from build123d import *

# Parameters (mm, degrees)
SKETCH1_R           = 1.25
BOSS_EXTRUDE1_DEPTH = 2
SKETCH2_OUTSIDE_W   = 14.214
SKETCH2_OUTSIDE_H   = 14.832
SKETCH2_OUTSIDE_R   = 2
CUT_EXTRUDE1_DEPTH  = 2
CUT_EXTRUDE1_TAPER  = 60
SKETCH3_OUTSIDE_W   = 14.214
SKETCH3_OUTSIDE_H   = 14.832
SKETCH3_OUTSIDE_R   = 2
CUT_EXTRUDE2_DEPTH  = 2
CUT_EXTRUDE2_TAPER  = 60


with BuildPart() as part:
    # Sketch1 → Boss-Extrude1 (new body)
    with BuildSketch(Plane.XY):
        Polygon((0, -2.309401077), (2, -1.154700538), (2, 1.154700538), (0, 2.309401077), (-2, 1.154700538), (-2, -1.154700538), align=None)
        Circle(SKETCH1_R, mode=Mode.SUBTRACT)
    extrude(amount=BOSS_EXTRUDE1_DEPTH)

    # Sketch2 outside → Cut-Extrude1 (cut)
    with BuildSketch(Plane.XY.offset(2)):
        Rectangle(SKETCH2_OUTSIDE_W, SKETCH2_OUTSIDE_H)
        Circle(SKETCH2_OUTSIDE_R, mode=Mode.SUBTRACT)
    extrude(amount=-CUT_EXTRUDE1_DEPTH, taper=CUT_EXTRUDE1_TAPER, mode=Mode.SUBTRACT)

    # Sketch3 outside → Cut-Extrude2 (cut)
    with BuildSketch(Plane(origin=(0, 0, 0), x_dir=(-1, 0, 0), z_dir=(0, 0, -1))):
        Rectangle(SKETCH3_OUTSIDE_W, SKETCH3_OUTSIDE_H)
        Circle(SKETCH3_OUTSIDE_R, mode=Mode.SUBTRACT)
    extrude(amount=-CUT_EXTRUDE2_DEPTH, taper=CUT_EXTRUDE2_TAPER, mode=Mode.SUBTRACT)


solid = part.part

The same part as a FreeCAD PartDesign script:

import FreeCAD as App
import Part
import Sketcher
from FreeCAD import Vector
Q = App.Units.Quantity


def add_polygon(sketch, points):
    """Adds a closed chain of lines whose ends are joined by coincident constraints."""
    first, n = sketch.GeometryCount, len(points)
    for a, b in zip(points, points[1:] + points[:1]):
        sketch.addGeometry(Part.LineSegment(App.Vector(*a, 0), App.Vector(*b, 0)), False)
    for i in range(n):
        sketch.addConstraint(Sketcher.Constraint("Coincident", first + i, 2, first + (i + 1) % n, 1))

doc = App.newDocument("Part")
body = doc.addObject("PartDesign::Body", "Body")

# Sketch on XY plane
sketch1 = body.newObject("Sketcher::SketchObject", "Sketch")
sketch1.AttachmentSupport = (doc.getObject("XY_Plane"), [""])
sketch1.MapMode = "FlatFace"
add_polygon(sketch1, [(0, -2.3), (2, -1.2), (2, 1.2), (0, 2.3), (-2, 1.2), (-2, -1.2)])  # lines 0-5
sketch1.addGeometry(Part.Circle(Vector(0, 0, 0), Vector(0, 0, 1), 1.2), False)  # 6
sketch1.addConstraint(Sketcher.Constraint("Vertical", 1))
sketch1.addConstraint(Sketcher.Constraint("Vertical", 4))
sketch1.addConstraint(Sketcher.Constraint("Coincident", 6, 3, -1, 1))
sketch1.addConstraint(Sketcher.Constraint("Symmetric", 0, 2, 3, 2, -1, 1))
sketch1.addConstraint(Sketcher.Constraint("Symmetric", 2, 2, 5, 2, -1, 1))
sketch1.addConstraint(Sketcher.Constraint("PointOnObject", 2, 2, -2))
sketch1.addConstraint(Sketcher.Constraint("Parallel", 2, 5))
sketch1.addConstraint(Sketcher.Constraint("Horizontal", 1, 2, 3, 2))
sketch1.addConstraint(Sketcher.Constraint("Diameter", 6, 2.5))
sketch1.addConstraint(Sketcher.Constraint("Angle", 0, Q("30 deg")))
sketch1.addConstraint(Sketcher.Constraint("DistanceX", -1, 1, 0, 2, 2.0))
sketch1.addConstraint(Sketcher.Constraint("DistanceY", 1, 1, 1, 2, 2.309401))
pad1 = body.newObject("PartDesign::Pad", "Pad")
pad1.Profile = sketch1
pad1.Length = 2

# Sketch on XY plane
sketch2 = body.newObject("Sketcher::SketchObject", "Sketch001")
sketch2.AttachmentSupport = (doc.getObject("XY_Plane"), [""])
sketch2.MapMode = "FlatFace"
sketch2.AttachmentOffset = App.Placement(Vector(0, 0, 2), App.Rotation())
add_polygon(sketch2, [(-7.1, 7.4), (-7.1, -7.4), (7.1, -7.4), (7.1, 7.4)])  # lines 0-3
sketch2.addGeometry(Part.Circle(Vector(0, 0, 0), Vector(0, 0, 1), 2), False)  # 4
sketch2.addConstraint(Sketcher.Constraint("Vertical", 0))
sketch2.addConstraint(Sketcher.Constraint("Horizontal", 1))
sketch2.addConstraint(Sketcher.Constraint("Vertical", 2))
sketch2.addConstraint(Sketcher.Constraint("Horizontal", 3))
sketch2.addConstraint(Sketcher.Constraint("Coincident", 4, 3, -1, 1))
sketch2.addConstraint(Sketcher.Constraint("Symmetric", 0, 2, 2, 2, -1, 1))
sketch2.addConstraint(Sketcher.Constraint("Diameter", 4, 4.0))
sketch2.addConstraint(Sketcher.Constraint("DistanceX", 1, 1, 1, 2, 14.214))
sketch2.addConstraint(Sketcher.Constraint("DistanceY", 0, 2, 0, 1, 14.832))
pocket1 = body.newObject("PartDesign::Pocket", "Pocket")
pocket1.Profile = sketch2
pocket1.Length = 2
pocket1.TaperAngle = 60

# Sketch on XY plane
sketch3 = body.newObject("Sketcher::SketchObject", "Sketch002")
sketch3.AttachmentSupport = (doc.getObject("XY_Plane"), [""])
sketch3.MapMode = "FlatFace"
add_polygon(sketch3, [(7.1, 7.4), (7.1, -7.4), (-7.1, -7.4), (-7.1, 7.4)])  # lines 0-3
sketch3.addGeometry(Part.Circle(Vector(0, 0, 0), Vector(0, 0, 1), 2), False)  # 4
sketch3.addConstraint(Sketcher.Constraint("Vertical", 0))
sketch3.addConstraint(Sketcher.Constraint("Horizontal", 1))
sketch3.addConstraint(Sketcher.Constraint("Vertical", 2))
sketch3.addConstraint(Sketcher.Constraint("Horizontal", 3))
sketch3.addConstraint(Sketcher.Constraint("Coincident", 4, 3, -1, 1))
sketch3.addConstraint(Sketcher.Constraint("Symmetric", 0, 2, 2, 2, -1, 1))
sketch3.addConstraint(Sketcher.Constraint("Diameter", 4, 4.0))
sketch3.addConstraint(Sketcher.Constraint("DistanceX", 1, 2, 1, 1, 14.214))
sketch3.addConstraint(Sketcher.Constraint("DistanceY", 0, 2, 0, 1, 14.832))
pocket2 = body.newObject("PartDesign::Pocket", "Pocket001")
pocket2.Profile = sketch3
pocket2.Length = 2
pocket2.Reversed = True
pocket2.TaperAngle = 60

doc.recompute()
